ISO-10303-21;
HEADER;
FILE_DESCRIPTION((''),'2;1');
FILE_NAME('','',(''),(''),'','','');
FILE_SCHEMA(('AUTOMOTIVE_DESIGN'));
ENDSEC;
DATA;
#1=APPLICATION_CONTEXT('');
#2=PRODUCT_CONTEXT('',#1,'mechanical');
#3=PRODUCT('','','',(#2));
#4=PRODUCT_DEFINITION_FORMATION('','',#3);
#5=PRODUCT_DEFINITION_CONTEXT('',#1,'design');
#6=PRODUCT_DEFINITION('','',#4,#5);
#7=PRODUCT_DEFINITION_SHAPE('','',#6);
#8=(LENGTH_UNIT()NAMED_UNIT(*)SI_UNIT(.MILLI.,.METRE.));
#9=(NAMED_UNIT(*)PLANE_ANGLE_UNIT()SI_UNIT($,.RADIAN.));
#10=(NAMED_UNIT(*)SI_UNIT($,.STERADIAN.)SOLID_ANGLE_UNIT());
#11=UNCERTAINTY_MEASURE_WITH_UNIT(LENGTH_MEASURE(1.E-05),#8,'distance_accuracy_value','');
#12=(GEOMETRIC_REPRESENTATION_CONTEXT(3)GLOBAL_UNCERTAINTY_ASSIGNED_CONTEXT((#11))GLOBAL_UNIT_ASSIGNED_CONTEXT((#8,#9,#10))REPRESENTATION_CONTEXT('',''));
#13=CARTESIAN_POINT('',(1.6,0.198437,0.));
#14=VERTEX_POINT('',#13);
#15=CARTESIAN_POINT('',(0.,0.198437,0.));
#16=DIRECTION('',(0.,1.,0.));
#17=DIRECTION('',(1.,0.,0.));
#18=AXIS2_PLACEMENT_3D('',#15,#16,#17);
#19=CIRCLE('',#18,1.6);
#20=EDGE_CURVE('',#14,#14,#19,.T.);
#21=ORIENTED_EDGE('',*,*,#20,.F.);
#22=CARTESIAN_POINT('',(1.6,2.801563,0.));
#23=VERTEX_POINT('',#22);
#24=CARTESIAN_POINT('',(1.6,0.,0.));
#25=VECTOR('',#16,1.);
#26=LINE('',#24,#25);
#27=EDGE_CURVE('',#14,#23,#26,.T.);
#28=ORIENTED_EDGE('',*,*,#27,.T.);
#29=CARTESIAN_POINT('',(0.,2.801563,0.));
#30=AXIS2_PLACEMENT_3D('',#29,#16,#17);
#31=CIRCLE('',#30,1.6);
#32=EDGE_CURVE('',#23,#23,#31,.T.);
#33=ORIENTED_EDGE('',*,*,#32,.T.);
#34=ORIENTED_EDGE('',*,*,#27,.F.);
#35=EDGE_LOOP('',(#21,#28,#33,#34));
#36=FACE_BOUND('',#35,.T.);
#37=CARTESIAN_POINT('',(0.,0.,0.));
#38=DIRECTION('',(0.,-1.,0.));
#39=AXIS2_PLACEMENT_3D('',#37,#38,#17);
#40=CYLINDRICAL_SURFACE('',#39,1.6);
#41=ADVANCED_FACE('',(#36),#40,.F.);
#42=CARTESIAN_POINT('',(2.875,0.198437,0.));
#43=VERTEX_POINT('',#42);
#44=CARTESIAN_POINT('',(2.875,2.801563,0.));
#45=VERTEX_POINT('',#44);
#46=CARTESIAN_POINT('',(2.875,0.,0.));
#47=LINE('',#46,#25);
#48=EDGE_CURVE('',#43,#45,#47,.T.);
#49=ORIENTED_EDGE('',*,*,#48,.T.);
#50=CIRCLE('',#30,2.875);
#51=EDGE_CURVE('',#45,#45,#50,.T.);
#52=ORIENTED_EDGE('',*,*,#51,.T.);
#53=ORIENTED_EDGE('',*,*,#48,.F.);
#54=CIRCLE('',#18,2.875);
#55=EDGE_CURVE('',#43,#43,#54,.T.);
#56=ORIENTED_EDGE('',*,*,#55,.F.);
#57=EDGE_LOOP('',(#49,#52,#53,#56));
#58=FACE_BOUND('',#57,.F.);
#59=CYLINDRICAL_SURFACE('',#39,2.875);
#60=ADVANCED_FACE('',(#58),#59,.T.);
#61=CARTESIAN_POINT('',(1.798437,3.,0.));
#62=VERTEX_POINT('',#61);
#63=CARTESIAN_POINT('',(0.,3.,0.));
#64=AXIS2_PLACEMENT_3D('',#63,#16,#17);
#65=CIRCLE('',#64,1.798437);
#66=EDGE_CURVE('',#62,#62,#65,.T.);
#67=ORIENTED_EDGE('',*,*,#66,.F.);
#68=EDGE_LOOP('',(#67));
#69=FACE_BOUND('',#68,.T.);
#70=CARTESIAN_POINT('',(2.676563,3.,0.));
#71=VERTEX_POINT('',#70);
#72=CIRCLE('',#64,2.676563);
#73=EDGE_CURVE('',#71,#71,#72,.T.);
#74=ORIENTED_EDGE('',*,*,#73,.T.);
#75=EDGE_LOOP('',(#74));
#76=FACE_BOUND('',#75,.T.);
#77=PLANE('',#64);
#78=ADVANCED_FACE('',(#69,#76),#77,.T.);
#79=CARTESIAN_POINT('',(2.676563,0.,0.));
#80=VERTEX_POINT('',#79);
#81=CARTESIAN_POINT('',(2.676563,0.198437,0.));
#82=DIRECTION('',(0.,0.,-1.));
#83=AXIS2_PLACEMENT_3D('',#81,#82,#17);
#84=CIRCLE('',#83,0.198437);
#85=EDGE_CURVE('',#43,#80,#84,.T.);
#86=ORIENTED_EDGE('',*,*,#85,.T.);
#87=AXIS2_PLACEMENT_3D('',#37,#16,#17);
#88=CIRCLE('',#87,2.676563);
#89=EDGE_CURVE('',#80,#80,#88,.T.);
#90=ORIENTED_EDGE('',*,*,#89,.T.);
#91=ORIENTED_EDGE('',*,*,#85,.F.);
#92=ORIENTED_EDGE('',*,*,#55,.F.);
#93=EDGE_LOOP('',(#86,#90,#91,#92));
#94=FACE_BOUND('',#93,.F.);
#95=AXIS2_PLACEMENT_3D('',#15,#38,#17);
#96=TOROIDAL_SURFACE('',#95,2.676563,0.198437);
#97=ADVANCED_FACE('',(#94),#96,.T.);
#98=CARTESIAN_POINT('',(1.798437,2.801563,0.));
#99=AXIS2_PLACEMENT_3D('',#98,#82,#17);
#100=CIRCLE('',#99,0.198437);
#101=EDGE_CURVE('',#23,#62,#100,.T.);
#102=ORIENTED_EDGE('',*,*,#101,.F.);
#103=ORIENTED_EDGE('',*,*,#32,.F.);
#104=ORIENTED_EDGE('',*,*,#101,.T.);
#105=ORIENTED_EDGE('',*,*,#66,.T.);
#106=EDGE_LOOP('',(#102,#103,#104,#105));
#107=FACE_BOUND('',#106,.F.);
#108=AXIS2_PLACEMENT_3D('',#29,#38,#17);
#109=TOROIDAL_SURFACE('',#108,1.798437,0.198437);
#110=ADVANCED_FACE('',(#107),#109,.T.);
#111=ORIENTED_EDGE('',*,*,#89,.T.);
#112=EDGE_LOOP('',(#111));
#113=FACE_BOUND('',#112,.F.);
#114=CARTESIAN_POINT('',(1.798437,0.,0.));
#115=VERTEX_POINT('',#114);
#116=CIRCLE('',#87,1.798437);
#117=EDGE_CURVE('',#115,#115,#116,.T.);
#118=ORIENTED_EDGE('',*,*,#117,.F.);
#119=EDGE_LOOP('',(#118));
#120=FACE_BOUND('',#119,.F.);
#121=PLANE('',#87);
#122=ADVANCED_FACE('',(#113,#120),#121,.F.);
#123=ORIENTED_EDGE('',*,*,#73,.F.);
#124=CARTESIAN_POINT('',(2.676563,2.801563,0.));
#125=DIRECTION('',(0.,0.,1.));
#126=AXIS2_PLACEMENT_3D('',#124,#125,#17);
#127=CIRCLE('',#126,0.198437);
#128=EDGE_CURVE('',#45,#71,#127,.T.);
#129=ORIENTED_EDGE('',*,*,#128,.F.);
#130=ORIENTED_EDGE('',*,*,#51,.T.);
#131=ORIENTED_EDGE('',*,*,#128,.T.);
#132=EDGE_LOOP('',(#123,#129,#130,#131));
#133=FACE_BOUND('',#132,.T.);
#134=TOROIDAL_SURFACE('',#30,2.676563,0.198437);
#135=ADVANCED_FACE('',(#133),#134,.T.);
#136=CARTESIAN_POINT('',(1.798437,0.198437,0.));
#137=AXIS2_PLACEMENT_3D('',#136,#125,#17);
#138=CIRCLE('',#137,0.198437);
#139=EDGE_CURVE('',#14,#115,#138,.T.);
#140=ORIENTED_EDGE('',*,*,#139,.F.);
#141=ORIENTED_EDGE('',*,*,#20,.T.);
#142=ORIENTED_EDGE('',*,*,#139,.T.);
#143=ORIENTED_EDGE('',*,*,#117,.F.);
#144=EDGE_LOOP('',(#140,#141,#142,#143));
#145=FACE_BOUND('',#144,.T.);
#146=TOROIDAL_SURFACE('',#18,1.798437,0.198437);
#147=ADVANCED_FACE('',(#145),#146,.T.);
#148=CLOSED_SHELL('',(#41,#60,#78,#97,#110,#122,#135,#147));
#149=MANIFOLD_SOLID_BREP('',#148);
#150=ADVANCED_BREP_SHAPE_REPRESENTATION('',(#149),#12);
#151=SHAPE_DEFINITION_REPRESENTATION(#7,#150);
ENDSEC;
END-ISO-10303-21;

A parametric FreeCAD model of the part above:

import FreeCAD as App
import Part
import Sketcher
from FreeCAD import Vector
Q = App.Units.Quantity


def edges_at(feature, points):
    """Names of the edges that pass closest to the given points."""
    edges = feature.Shape.Edges
    near = lambda p: min(range(len(edges)), key=lambda i: edges[i].distToShape(Part.Vertex(*p))[0])
    return sorted({f"Edge{near(p) + 1}" for p in points})

doc = App.newDocument("Part")
body = doc.addObject("PartDesign::Body", "Body")

sketch1 = body.newObject("Sketcher::SketchObject", "Sketch")
sketch1.AttachmentSupport = (doc.getObject("XZ_Plane"), [""])
sketch1.MapMode = "FlatFace"
sketch1.addGeometry([
    Part.Circle(Vector(0, 0, 0), Vector(0, 0, 1), 2.9),
    Part.Circle(Vector(0, 0, 0), Vector(0, 0, 1), 1.6),
], False)
sketch1.addConstraint([
    Sketcher.Constraint("Coincident", 0, 3, -1, 1),
    Sketcher.Constraint("Coincident", 1, 3, -1, 1),
    Sketcher.Constraint("Diameter", 1, Q("3.2 mm")),
    Sketcher.Constraint("Diameter", 0, Q("5.75 mm")),
])
pad1 = body.newObject("PartDesign::Pad", "Pad")
pad1.Profile = sketch1
pad1.Length = 3
pad1.Reversed = True
doc.recompute()

fillet = body.newObject("PartDesign::Fillet", "Fillet")
fillet.Base = (pad1, edges_at(pad1, [
    (-2.875, 0, 0),
    (-2.875, 3, 0),
    (-1.6, 0, 0),
    (-1.6, 3, 0),
]))
fillet.Radius = 0.198437

doc.recompute()
